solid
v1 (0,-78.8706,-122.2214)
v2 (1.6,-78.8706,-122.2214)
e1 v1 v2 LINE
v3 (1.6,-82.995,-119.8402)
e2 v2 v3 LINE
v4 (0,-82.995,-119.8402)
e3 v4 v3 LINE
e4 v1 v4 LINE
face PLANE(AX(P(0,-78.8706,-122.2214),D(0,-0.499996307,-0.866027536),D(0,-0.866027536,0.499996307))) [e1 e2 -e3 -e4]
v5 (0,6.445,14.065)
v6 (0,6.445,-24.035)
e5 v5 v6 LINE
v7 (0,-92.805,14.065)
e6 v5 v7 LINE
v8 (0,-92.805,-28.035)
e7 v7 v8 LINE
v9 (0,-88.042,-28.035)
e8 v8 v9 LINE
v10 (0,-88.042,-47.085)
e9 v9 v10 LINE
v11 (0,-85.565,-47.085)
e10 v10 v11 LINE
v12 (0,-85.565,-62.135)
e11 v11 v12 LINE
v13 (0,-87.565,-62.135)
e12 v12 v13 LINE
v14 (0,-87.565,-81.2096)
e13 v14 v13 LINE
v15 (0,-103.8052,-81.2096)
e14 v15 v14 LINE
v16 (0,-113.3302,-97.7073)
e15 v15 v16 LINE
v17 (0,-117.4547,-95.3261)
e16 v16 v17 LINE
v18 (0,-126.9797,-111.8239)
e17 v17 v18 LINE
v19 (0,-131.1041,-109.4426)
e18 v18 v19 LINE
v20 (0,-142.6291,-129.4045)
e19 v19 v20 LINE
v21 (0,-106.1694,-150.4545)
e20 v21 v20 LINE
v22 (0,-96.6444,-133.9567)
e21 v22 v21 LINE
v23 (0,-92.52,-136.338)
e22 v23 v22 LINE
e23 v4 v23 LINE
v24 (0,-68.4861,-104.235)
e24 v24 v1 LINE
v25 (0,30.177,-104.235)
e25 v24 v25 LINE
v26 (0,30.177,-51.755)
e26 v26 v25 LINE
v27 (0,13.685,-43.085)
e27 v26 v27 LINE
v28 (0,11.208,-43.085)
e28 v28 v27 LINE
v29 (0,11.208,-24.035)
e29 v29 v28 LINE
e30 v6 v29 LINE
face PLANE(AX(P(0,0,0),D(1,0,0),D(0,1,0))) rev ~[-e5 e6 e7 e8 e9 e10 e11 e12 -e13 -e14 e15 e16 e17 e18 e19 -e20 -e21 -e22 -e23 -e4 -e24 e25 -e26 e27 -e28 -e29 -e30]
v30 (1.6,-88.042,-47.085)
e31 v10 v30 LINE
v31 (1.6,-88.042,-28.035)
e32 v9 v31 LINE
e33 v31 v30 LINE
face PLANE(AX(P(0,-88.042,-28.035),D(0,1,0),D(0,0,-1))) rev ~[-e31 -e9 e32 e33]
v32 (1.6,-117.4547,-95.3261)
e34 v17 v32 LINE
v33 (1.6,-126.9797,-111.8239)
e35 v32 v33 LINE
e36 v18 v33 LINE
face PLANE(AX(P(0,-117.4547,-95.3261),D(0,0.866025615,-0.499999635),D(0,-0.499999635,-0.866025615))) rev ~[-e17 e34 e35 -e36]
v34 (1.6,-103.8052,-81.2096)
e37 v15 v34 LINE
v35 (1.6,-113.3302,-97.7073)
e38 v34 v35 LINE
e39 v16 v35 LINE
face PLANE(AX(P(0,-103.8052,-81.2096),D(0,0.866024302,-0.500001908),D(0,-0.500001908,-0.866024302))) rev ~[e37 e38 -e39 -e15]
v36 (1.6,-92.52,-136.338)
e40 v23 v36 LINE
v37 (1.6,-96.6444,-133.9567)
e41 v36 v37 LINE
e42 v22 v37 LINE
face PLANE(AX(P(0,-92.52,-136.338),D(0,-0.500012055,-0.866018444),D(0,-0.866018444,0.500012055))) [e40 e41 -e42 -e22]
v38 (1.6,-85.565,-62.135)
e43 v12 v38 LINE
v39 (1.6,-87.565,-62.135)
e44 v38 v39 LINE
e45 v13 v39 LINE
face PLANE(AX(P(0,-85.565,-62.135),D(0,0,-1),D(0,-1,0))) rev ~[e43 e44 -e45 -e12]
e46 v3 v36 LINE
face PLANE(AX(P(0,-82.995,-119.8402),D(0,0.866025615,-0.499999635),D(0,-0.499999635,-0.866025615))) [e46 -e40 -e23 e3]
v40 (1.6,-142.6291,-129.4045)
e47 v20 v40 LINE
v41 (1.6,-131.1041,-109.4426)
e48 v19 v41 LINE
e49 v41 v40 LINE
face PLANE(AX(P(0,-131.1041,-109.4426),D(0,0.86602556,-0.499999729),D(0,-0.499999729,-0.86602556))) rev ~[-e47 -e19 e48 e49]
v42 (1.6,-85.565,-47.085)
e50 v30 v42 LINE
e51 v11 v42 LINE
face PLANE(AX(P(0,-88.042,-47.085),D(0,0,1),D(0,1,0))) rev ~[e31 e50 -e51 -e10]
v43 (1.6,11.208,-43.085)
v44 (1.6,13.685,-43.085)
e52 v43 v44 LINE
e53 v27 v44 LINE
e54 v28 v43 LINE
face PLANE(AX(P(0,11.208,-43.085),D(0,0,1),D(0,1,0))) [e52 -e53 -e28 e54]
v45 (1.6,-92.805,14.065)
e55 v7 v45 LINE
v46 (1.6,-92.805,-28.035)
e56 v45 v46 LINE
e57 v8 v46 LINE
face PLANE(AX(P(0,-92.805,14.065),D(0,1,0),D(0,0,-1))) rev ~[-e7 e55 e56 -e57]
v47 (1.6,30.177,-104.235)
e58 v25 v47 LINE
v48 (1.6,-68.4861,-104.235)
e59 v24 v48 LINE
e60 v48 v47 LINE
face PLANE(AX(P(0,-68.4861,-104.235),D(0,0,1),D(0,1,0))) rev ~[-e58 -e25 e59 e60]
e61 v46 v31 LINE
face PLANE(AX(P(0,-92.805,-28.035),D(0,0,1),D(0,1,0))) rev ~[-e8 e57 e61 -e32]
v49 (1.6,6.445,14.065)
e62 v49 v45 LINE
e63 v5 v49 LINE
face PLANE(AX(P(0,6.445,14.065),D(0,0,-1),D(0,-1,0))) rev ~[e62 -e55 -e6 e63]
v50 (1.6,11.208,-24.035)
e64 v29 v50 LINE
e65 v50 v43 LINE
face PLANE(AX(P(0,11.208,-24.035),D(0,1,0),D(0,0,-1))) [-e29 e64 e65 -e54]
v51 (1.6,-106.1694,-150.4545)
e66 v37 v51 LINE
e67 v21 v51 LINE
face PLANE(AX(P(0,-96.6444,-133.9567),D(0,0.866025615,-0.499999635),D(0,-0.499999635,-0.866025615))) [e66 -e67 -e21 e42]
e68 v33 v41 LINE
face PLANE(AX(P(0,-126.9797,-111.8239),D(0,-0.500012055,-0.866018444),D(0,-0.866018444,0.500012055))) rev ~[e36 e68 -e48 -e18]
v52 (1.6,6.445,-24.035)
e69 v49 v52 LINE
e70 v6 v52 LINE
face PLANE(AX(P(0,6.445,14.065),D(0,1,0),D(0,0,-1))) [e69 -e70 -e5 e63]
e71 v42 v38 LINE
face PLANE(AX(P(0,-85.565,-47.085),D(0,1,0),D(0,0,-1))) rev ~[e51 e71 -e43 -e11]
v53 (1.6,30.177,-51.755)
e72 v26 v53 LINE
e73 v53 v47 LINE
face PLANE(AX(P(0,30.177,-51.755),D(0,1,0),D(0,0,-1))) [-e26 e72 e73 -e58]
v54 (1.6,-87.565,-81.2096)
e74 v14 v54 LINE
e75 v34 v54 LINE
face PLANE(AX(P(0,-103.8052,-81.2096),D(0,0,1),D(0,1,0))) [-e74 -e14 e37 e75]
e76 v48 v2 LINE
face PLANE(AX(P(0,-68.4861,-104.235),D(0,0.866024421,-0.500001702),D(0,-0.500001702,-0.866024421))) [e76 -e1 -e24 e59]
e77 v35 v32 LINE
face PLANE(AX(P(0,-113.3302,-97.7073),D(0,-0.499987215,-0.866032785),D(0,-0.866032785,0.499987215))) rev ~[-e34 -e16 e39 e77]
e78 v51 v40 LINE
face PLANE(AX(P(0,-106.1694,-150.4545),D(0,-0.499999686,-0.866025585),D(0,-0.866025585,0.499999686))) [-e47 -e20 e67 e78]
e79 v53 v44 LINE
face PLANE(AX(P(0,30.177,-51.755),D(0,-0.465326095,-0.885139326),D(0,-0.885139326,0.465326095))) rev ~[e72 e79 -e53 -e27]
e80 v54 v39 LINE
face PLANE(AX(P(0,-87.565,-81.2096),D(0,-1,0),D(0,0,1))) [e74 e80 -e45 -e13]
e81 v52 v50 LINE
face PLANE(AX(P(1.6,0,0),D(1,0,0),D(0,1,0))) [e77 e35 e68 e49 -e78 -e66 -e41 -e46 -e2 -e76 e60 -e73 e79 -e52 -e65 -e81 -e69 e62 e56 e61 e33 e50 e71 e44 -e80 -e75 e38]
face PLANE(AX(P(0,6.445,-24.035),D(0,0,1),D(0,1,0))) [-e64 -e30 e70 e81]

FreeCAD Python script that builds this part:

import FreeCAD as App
import Part
import Sketcher

V = App.Vector
Q = App.Units.Quantity


def add_polygon(sketch, points):
    """Adds a closed chain of lines whose ends are joined by coincident constraints."""
    first, n = sketch.GeometryCount, len(points)
    for a, b in zip(points, points[1:] + points[:1]):
        sketch.addGeometry(Part.LineSegment(App.Vector(*a, 0), App.Vector(*b, 0)), False)
    for i in range(n):
        sketch.addConstraint(Sketcher.Constraint("Coincident", first + i, 2, first + (i + 1) % n, 1))

doc = App.newDocument("Part")
params = doc.addObject("Spreadsheet::Sheet", "Params")
for row, (alias, value) in enumerate([
    ("sketch1_height", "1.5 in"),
    ("sketch1_height2", "0.75 in"),
    ("sketch1_length", "0.75 in"),
    ("sketch1_length2", "0.1875 in"),
    ("pad1_length", "0.0629921 in"),
], start=1):
    params.set(f"A{row}", alias)
    params.set(f"B{row}", "=" + value)
    params.setAlias(f"B{row}", alias)

body = doc.addObject("PartDesign::Body", "Body")

# Sketch on YZ plane
sketch1 = doc.addObject("Sketcher::SketchObject", "Sketch")
body.addObject(sketch1)
sketch1.AttachmentSupport = (doc.YZ_Plane, [""])
sketch1.MapMode = "FlatFace"
add_polygon(sketch1, [(6.4, -24), (6.4, 14.1), (-92.8, 14.1), (-92.8, -28), (-88, -28), (-88, -47.1), (-85.6, -47.1), (-85.6, -62.1), (-87.6, -62.1), (-87.6, -81.2), (-103.8, -81.2), (-113.3, -97.7), (-117.5, -95.3), (-127, -111.8), (-131.1, -109.4), (-142.6, -129.4), (-106.2, -150.5), (-96.6, -134), (-92.5, -136.3), (-83, -119.8), (-78.9, -122.2), (-68.5, -104.2), (30.2, -104.2), (30.2, -51.8), (13.7, -43.1), (11.2, -43.1), (11.2, -24)])  # lines 0-26
sketch1.addConstraint([
    Sketcher.Constraint("Vertical", 0),
    Sketcher.Constraint("Horizontal", 1),
    Sketcher.Constraint("Vertical", 2),
    Sketcher.Constraint("Horizontal", 3),
    Sketcher.Constraint("Vertical", 4),
    Sketcher.Constraint("Horizontal", 5),
    Sketcher.Constraint("Vertical", 6),
    Sketcher.Constraint("Horizontal", 7),
    Sketcher.Constraint("Vertical", 8),
    Sketcher.Constraint("Horizontal", 9),
    Sketcher.Constraint("Horizontal", 21),
    Sketcher.Constraint("Vertical", 22),
    Sketcher.Constraint("Horizontal", 24),
    Sketcher.Constraint("Vertical", 25),
    Sketcher.Constraint("Horizontal", 26),
    Sketcher.Constraint("Perpendicular", 10, 11),
    Sketcher.Constraint("Perpendicular", 11, 12),
    Sketcher.Constraint("Perpendicular", 12, 13),
    Sketcher.Constraint("Perpendicular", 13, 14),
    Sketcher.Constraint("Perpendicular", 14, 15),
    Sketcher.Constraint("Perpendicular", 15, 16),
    Sketcher.Constraint("Perpendicular", 16, 17),
    Sketcher.Constraint("Perpendicular", 17, 18),
    Sketcher.Constraint("Perpendicular", 18, 19),
    Sketcher.Constraint("Perpendicular", 19, 20),
    Sketcher.Constraint("Equal", 5, 24),
    Sketcher.Constraint("Equal", 3, 26),
    Sketcher.Constraint("Equal", 4, 25),
    Sketcher.Constraint("Equal", 10, 12),
    Sketcher.Constraint("Equal", 11, 13),
    Sketcher.Constraint("Equal", 12, 16),
    Sketcher.Constraint("Equal", 13, 17),
    Sketcher.Constraint("Equal", 16, 18),
    Sketcher.Constraint("Equal", 17, 19),
    Sketcher.Constraint("DistanceY", 0, 1, 0, 2, Q("1.5 in")),
    Sketcher.Constraint("Angle", 10, Q("-120.0001 deg")),
    Sketcher.Constraint("DistanceY", 6, 2, 1, 2, Q("3 in")),
    Sketcher.Constraint("DistanceY", 4, 2, 4, 1, Q("0.75 in")),
    Sketcher.Constraint("Distance", 10, Q("0.75 in")),
    Sketcher.Constraint("Distance", 11, Q("0.1875 in")),
    Sketcher.Constraint("DistanceY", 11, 2, -1, 1, Q("3.753 in")),
    Sketcher.Constraint("DistanceY", 10, 2, 4, 2, Q("1.993 in")),
    Sketcher.Constraint("DistanceX", 1, 2, 1, 1, 99.25),
    Sketcher.Constraint("DistanceX", 3, 1, 3, 2, 4.763),
    Sketcher.Constraint("DistanceX", 5, 1, 5, 2, 2.477),
    Sketcher.Constraint("DistanceX", 7, 2, 7, 1, 2.0),
    Sketcher.Constraint("DistanceX", 9, 2, 9, 1, 16.2402),
    Sketcher.Constraint("DistanceX", 21, 1, 21, 2, 98.663),
    Sketcher.Constraint("DistanceY", 2, 2, 2, 1, 42.1),
    Sketcher.Constraint("DistanceY", 22, 1, 22, 2, 52.48),
    Sketcher.Constraint("DistanceX", 5, 2, -1, 1, Q("3.3687 in")),
    Sketcher.Constraint("DistanceX", 15, 2, -1, 1, Q("4.1799 in")),
    Sketcher.Constraint("DistanceY", 15, 2, -1, 1, Q("5.9234 in")),
    Sketcher.Constraint("DistanceX", 20, 2, -1, 1, Q("2.6963 in")),
])
sketch1.setExpression("Constraints[61]", "Params.sketch1_height")
sketch1.setExpression("Constraints[64]", "Params.sketch1_height2")
sketch1.setExpression("Constraints[65]", "Params.sketch1_length")
sketch1.setExpression("Constraints[66]", "Params.sketch1_length2")
pad1 = doc.addObject("PartDesign::Pad", "Pad")
body.addObject(pad1)
pad1.Profile = sketch1
pad1.setExpression("Length", "Params.pad1_length")

doc.recompute()
